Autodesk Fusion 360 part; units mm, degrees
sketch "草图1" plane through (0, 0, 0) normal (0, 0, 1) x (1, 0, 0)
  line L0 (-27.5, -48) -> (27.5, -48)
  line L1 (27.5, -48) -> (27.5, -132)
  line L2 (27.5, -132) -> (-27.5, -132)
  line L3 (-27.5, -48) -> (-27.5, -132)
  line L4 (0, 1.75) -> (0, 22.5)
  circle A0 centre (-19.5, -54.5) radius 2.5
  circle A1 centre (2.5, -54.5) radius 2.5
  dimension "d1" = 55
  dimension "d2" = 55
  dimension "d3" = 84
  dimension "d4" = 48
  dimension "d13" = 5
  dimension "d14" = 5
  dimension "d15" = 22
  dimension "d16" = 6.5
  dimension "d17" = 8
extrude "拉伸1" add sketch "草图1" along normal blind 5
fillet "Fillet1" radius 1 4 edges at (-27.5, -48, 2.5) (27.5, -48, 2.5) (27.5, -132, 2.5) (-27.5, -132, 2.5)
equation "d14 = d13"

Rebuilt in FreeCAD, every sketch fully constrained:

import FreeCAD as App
import Part
import Sketcher

V = App.Vector


def edges_at(feature, points):
    """Names of the edges that pass closest to the given points."""
    edges = feature.Shape.Edges
    near = lambda p: min(range(len(edges)), key=lambda i: edges[i].distToShape(Part.Vertex(*p))[0])
    return sorted({f"Edge{near(p) + 1}" for p in points})

doc = App.newDocument("Part")
body = doc.addObject("PartDesign::Body", "Body")

# Sketch on XY plane
sketch1 = body.newObject("Sketcher::SketchObject", "Sketch")
sketch1.AttachmentSupport = (doc.getObject("XY_Plane"), [""])
sketch1.MapMode = "FlatFace"
sketch1.addGeometry([
    Part.LineSegment(V(27.5, -48, 0), V(-27.5, -48, 0)),  # 0
    Part.LineSegment(V(-27.5, -48, 0), V(-27.5, -132, 0)),  # 1
    Part.LineSegment(V(-27.5, -132, 0), V(27.5, -132, 0)),  # 2
    Part.LineSegment(V(27.5, -132, 0), V(27.5, -48, 0)),  # 3
    Part.Circle(V(-19.5, -54.5, 0), V(0, 0, 1), 2.5),  # 4
    Part.Circle(V(2.5, -54.5, 0), V(0, 0, 1), 2.5),  # 5
], False)
sketch1.addConstraint([
    Sketcher.Constraint("Coincident", 0, 2, 1, 1),
    Sketcher.Constraint("Coincident", 1, 2, 2, 1),
    Sketcher.Constraint("Coincident", 2, 2, 3, 1),
    Sketcher.Constraint("Coincident", 3, 2, 0, 1),
    Sketcher.Constraint("Horizontal", 0),
    Sketcher.Constraint("Vertical", 1),
    Sketcher.Constraint("Horizontal", 2),
    Sketcher.Constraint("Vertical", 3),
    Sketcher.Constraint("Equal", 4, 5),
    Sketcher.Constraint("Horizontal", 4, 3, 5, 3),
    Sketcher.Constraint("Diameter", 4, 5.0),
    Sketcher.Constraint("DistanceX", 0, 2, 0, 1, 55.0),
    Sketcher.Constraint("DistanceY", 1, 2, 1, 1, 84.0),
    Sketcher.Constraint("DistanceY", 0, 2, -1, 1, 48.0),
    Sketcher.Constraint("DistanceX", 4, 3, 5, 3, 22.0),
    Sketcher.Constraint("DistanceX", 0, 2, 4, 3, 8.0),
    Sketcher.Constraint("DistanceY", 4, 3, 0, 2, 6.5),
    Sketcher.Constraint("DistanceX", 4, 3, -1, 1, 19.5),
])
pad1 = body.newObject("PartDesign::Pad", "Pad")
pad1.Profile = sketch1
pad1.Length = 5
doc.recompute()

fillet = body.newObject("PartDesign::Fillet", "Fillet")
fillet.Base = (pad1, edges_at(pad1, [
    (-27.5, -48, 2.5),
    (27.5, -48, 2.5),
    (27.5, -132, 2.5),
    (-27.5, -132, 2.5),
]))
fillet.Radius = 1

doc.recompute()
